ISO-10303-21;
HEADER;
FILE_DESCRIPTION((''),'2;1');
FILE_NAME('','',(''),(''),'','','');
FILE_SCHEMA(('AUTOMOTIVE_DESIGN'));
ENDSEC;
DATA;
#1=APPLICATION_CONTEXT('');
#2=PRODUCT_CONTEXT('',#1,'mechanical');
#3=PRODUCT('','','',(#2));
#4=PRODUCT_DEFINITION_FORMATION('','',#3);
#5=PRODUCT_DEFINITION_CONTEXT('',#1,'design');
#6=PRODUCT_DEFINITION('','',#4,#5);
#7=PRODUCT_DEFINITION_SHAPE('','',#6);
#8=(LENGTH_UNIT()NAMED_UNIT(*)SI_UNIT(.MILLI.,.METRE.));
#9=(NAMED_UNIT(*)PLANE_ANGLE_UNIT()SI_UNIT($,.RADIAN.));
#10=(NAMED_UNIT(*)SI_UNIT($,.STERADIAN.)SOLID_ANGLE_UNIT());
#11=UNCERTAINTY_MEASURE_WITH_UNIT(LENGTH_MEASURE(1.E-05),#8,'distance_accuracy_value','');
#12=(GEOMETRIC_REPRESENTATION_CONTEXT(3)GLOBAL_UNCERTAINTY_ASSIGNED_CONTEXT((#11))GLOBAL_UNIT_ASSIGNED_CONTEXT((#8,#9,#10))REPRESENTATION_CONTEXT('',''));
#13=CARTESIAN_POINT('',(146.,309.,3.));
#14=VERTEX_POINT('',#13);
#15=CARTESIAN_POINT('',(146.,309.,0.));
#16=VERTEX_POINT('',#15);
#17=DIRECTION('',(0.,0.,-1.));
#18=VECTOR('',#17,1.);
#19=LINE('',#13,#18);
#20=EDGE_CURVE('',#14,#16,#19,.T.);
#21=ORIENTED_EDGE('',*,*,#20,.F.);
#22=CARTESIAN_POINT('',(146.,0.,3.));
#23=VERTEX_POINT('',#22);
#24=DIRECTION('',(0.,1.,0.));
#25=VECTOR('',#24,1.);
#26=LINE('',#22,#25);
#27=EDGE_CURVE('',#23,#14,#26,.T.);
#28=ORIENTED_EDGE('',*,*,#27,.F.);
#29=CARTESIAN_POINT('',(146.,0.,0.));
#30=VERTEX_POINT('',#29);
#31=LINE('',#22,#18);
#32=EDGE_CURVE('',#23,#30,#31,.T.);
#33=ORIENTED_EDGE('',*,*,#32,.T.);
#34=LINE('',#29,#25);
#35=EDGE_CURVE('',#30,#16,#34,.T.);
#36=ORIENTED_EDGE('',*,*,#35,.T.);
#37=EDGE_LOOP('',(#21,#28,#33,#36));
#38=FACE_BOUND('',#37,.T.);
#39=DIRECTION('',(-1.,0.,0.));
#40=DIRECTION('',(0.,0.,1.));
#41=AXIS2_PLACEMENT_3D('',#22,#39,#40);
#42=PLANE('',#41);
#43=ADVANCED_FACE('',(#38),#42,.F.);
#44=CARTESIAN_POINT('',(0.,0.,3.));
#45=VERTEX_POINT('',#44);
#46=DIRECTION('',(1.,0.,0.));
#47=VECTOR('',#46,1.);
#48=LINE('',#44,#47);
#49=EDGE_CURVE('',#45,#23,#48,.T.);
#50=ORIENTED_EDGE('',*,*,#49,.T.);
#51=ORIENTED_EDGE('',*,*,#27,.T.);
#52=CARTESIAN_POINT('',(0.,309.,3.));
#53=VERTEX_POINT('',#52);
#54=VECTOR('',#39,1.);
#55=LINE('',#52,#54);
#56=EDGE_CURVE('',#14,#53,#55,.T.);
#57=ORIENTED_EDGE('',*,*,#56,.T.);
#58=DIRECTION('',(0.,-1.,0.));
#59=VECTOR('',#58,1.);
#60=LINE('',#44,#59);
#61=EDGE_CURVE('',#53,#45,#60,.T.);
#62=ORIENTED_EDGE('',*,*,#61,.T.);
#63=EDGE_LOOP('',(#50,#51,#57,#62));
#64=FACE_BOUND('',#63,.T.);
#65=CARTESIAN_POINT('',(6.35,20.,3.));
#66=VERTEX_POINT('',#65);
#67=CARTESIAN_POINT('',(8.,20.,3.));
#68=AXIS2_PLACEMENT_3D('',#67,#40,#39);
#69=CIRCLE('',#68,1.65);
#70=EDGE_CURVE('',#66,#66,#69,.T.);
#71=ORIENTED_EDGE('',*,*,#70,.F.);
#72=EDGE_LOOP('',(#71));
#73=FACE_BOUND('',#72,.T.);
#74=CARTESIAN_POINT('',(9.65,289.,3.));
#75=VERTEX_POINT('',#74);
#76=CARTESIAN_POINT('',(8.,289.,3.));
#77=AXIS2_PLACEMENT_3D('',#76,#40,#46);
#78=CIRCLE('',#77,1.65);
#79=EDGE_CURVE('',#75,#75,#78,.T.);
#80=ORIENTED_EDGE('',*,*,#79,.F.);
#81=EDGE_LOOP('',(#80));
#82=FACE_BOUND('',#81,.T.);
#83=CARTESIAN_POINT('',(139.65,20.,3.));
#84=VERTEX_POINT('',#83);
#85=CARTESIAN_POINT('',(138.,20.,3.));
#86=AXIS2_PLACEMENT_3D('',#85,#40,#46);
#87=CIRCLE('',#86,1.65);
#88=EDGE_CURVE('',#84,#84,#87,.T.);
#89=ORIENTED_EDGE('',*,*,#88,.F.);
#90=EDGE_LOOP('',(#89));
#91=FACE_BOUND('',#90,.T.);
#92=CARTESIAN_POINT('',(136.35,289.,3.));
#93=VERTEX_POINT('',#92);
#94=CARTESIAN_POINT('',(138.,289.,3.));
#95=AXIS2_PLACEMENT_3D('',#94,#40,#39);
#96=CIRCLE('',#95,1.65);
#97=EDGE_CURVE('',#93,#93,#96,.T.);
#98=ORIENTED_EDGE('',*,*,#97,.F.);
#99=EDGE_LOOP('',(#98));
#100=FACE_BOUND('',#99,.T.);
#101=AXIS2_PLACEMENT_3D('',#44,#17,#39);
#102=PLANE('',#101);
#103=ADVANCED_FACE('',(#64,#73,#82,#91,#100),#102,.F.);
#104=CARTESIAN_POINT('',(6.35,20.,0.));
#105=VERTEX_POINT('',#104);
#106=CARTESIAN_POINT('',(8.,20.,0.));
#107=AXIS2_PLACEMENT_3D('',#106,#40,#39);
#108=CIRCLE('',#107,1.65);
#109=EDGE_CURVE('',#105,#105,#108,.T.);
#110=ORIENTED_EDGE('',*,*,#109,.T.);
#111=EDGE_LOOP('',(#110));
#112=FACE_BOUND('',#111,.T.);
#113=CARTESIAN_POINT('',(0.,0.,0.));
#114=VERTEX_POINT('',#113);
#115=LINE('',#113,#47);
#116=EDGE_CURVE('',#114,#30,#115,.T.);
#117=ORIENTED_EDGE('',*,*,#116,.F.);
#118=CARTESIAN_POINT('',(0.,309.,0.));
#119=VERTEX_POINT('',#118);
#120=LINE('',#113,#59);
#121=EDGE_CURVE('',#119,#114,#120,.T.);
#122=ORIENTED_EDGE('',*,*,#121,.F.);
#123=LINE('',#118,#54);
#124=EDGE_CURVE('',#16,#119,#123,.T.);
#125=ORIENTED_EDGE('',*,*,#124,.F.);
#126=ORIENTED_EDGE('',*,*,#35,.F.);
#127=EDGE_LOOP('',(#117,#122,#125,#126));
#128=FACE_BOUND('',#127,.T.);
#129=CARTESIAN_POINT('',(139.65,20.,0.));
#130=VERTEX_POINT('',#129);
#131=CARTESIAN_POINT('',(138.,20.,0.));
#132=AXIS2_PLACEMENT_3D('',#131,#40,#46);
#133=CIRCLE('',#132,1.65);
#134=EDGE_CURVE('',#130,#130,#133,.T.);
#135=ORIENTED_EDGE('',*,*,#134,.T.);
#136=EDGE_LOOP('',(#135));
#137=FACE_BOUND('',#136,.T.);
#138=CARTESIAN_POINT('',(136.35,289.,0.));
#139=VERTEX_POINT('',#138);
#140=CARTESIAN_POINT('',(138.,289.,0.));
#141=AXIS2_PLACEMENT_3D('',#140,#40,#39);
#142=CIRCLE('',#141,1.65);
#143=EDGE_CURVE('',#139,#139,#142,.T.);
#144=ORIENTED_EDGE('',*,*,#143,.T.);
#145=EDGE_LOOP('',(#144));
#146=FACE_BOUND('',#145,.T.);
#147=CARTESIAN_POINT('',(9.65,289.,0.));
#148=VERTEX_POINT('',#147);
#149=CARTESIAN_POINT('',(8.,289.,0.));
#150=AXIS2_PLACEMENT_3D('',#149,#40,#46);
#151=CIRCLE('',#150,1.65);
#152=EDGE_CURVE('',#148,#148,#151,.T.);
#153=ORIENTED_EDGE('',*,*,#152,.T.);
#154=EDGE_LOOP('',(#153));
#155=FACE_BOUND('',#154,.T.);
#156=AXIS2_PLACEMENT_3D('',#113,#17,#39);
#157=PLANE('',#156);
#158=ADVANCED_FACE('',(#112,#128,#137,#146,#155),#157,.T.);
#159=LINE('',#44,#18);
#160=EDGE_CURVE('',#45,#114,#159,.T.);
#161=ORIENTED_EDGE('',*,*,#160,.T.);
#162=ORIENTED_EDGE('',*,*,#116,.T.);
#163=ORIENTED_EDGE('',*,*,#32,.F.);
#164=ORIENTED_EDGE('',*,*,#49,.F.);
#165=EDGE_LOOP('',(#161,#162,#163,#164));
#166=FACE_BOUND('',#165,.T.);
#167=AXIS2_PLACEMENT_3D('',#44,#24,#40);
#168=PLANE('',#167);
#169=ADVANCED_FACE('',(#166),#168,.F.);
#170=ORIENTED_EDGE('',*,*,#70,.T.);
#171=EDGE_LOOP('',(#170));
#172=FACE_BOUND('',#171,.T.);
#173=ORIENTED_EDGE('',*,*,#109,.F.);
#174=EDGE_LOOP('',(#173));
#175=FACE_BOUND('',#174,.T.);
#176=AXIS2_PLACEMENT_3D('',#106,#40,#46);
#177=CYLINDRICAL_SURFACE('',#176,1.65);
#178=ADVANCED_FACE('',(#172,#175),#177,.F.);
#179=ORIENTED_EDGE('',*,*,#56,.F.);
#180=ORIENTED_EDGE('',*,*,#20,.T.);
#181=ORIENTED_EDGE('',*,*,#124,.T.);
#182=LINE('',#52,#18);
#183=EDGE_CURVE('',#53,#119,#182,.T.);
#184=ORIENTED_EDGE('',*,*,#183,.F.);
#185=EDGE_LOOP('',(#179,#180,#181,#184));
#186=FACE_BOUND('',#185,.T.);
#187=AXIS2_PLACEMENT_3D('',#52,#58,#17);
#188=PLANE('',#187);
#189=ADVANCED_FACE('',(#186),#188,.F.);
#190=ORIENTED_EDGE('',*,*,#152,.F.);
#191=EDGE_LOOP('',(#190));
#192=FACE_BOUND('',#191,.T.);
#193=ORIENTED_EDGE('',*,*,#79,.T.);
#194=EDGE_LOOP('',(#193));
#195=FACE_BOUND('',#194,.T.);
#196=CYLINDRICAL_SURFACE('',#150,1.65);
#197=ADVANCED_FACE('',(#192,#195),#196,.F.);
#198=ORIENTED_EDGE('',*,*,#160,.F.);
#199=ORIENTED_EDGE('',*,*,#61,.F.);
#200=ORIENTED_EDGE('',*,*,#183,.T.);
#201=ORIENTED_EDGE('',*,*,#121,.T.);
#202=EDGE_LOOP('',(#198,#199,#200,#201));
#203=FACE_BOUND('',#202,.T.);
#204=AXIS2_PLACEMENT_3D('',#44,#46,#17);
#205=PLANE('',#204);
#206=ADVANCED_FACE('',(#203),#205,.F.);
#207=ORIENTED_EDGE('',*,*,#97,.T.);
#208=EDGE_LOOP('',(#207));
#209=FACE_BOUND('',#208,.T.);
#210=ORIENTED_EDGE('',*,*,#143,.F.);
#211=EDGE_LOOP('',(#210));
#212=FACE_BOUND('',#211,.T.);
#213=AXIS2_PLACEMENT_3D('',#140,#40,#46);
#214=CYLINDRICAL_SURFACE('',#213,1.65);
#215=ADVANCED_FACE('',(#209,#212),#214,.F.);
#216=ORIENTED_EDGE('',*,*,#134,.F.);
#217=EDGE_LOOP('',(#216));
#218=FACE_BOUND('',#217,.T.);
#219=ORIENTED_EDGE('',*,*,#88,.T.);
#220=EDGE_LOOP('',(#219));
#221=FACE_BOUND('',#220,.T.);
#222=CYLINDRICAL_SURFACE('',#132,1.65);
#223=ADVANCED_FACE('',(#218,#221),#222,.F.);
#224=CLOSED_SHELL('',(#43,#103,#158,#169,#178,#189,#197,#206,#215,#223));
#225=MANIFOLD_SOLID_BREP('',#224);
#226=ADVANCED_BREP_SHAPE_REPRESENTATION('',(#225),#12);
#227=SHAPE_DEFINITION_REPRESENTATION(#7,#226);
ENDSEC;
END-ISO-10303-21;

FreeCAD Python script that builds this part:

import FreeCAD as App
import Part
import Sketcher


def add_polygon(sketch, points):
    """Adds a closed chain of lines whose ends are joined by coincident constraints."""
    first, n = sketch.GeometryCount, len(points)
    for a, b in zip(points, points[1:] + points[:1]):
        sketch.addGeometry(Part.LineSegment(App.Vector(*a, 0), App.Vector(*b, 0)), False)
    for i in range(n):
        sketch.addConstraint(Sketcher.Constraint("Coincident", first + i, 2, first + (i + 1) % n, 1))

doc = App.newDocument("Part")
body = doc.addObject("PartDesign::Body", "Body")

# Sketch on XY plane
sketch1 = body.newObject("Sketcher::SketchObject", "Sketch")
sketch1.AttachmentSupport = (doc.getObject("XY_Plane"), [""])
sketch1.MapMode = "FlatFace"
add_polygon(sketch1, [(0, 309), (0, 0), (146, 0), (146, 309)])  # lines 0-3
sketch1.addConstraint([
    Sketcher.Constraint("Vertical", 0),
    Sketcher.Constraint("Horizontal", 1),
    Sketcher.Constraint("Vertical", 2),
    Sketcher.Constraint("Horizontal", 3),
    Sketcher.Constraint("Coincident", 0, 2, -1, 1),
    Sketcher.Constraint("DistanceX", 1, 1, 1, 2, 146.0),
    Sketcher.Constraint("DistanceY", 0, 2, 0, 1, 309.0),
])
pad1 = body.newObject("PartDesign::Pad", "Pad")
pad1.Profile = sketch1
pad1.Length = 3

# Sketch on XY plane
sketch2 = body.newObject("Sketcher::SketchObject", "Sketch001")
sketch2.AttachmentSupport = (doc.getObject("XY_Plane"), [""])
sketch2.MapMode = "FlatFace"
sketch2.AttachmentOffset = App.Placement(App.Vector(0, 0, 3), App.Rotation())
sketch2.addGeometry([
    Part.Circle(App.Vector(8, 289, 0), App.Vector(0, 0, 1), 1.6),
    Part.Circle(App.Vector(138, 289, 0), App.Vector(0, 0, 1), 1.6),
    Part.Circle(App.Vector(138, 20, 0), App.Vector(0, 0, 1), 1.6),
    Part.Circle(App.Vector(8, 20, 0), App.Vector(0, 0, 1), 1.6),
], False)
sketch2.addConstraint([
    Sketcher.Constraint("Equal", 0, 1),
    Sketcher.Constraint("Equal", 1, 2),
    Sketcher.Constraint("Equal", 2, 3),
    Sketcher.Constraint("Horizontal", 0, 3, 1, 3),
    Sketcher.Constraint("Horizontal", 2, 3, 3, 3),
    Sketcher.Constraint("Vertical", 1, 3, 2, 3),
    Sketcher.Constraint("Vertical", 0, 3, 3, 3),
    Sketcher.Constraint("Diameter", 0, 3.3),
    Sketcher.Constraint("DistanceX", -1, 1, 0, 3, 8.0),
    Sketcher.Constraint("DistanceY", -1, 1, 0, 3, 289.0),
    Sketcher.Constraint("DistanceX", -1, 1, 1, 3, 138.0),
    Sketcher.Constraint("DistanceY", -1, 1, 2, 3, 20.0),
])
pocket1 = body.newObject("PartDesign::Pocket", "Pocket")
pocket1.Profile = sketch2
pocket1.Type = "ThroughAll"

doc.recompute()
